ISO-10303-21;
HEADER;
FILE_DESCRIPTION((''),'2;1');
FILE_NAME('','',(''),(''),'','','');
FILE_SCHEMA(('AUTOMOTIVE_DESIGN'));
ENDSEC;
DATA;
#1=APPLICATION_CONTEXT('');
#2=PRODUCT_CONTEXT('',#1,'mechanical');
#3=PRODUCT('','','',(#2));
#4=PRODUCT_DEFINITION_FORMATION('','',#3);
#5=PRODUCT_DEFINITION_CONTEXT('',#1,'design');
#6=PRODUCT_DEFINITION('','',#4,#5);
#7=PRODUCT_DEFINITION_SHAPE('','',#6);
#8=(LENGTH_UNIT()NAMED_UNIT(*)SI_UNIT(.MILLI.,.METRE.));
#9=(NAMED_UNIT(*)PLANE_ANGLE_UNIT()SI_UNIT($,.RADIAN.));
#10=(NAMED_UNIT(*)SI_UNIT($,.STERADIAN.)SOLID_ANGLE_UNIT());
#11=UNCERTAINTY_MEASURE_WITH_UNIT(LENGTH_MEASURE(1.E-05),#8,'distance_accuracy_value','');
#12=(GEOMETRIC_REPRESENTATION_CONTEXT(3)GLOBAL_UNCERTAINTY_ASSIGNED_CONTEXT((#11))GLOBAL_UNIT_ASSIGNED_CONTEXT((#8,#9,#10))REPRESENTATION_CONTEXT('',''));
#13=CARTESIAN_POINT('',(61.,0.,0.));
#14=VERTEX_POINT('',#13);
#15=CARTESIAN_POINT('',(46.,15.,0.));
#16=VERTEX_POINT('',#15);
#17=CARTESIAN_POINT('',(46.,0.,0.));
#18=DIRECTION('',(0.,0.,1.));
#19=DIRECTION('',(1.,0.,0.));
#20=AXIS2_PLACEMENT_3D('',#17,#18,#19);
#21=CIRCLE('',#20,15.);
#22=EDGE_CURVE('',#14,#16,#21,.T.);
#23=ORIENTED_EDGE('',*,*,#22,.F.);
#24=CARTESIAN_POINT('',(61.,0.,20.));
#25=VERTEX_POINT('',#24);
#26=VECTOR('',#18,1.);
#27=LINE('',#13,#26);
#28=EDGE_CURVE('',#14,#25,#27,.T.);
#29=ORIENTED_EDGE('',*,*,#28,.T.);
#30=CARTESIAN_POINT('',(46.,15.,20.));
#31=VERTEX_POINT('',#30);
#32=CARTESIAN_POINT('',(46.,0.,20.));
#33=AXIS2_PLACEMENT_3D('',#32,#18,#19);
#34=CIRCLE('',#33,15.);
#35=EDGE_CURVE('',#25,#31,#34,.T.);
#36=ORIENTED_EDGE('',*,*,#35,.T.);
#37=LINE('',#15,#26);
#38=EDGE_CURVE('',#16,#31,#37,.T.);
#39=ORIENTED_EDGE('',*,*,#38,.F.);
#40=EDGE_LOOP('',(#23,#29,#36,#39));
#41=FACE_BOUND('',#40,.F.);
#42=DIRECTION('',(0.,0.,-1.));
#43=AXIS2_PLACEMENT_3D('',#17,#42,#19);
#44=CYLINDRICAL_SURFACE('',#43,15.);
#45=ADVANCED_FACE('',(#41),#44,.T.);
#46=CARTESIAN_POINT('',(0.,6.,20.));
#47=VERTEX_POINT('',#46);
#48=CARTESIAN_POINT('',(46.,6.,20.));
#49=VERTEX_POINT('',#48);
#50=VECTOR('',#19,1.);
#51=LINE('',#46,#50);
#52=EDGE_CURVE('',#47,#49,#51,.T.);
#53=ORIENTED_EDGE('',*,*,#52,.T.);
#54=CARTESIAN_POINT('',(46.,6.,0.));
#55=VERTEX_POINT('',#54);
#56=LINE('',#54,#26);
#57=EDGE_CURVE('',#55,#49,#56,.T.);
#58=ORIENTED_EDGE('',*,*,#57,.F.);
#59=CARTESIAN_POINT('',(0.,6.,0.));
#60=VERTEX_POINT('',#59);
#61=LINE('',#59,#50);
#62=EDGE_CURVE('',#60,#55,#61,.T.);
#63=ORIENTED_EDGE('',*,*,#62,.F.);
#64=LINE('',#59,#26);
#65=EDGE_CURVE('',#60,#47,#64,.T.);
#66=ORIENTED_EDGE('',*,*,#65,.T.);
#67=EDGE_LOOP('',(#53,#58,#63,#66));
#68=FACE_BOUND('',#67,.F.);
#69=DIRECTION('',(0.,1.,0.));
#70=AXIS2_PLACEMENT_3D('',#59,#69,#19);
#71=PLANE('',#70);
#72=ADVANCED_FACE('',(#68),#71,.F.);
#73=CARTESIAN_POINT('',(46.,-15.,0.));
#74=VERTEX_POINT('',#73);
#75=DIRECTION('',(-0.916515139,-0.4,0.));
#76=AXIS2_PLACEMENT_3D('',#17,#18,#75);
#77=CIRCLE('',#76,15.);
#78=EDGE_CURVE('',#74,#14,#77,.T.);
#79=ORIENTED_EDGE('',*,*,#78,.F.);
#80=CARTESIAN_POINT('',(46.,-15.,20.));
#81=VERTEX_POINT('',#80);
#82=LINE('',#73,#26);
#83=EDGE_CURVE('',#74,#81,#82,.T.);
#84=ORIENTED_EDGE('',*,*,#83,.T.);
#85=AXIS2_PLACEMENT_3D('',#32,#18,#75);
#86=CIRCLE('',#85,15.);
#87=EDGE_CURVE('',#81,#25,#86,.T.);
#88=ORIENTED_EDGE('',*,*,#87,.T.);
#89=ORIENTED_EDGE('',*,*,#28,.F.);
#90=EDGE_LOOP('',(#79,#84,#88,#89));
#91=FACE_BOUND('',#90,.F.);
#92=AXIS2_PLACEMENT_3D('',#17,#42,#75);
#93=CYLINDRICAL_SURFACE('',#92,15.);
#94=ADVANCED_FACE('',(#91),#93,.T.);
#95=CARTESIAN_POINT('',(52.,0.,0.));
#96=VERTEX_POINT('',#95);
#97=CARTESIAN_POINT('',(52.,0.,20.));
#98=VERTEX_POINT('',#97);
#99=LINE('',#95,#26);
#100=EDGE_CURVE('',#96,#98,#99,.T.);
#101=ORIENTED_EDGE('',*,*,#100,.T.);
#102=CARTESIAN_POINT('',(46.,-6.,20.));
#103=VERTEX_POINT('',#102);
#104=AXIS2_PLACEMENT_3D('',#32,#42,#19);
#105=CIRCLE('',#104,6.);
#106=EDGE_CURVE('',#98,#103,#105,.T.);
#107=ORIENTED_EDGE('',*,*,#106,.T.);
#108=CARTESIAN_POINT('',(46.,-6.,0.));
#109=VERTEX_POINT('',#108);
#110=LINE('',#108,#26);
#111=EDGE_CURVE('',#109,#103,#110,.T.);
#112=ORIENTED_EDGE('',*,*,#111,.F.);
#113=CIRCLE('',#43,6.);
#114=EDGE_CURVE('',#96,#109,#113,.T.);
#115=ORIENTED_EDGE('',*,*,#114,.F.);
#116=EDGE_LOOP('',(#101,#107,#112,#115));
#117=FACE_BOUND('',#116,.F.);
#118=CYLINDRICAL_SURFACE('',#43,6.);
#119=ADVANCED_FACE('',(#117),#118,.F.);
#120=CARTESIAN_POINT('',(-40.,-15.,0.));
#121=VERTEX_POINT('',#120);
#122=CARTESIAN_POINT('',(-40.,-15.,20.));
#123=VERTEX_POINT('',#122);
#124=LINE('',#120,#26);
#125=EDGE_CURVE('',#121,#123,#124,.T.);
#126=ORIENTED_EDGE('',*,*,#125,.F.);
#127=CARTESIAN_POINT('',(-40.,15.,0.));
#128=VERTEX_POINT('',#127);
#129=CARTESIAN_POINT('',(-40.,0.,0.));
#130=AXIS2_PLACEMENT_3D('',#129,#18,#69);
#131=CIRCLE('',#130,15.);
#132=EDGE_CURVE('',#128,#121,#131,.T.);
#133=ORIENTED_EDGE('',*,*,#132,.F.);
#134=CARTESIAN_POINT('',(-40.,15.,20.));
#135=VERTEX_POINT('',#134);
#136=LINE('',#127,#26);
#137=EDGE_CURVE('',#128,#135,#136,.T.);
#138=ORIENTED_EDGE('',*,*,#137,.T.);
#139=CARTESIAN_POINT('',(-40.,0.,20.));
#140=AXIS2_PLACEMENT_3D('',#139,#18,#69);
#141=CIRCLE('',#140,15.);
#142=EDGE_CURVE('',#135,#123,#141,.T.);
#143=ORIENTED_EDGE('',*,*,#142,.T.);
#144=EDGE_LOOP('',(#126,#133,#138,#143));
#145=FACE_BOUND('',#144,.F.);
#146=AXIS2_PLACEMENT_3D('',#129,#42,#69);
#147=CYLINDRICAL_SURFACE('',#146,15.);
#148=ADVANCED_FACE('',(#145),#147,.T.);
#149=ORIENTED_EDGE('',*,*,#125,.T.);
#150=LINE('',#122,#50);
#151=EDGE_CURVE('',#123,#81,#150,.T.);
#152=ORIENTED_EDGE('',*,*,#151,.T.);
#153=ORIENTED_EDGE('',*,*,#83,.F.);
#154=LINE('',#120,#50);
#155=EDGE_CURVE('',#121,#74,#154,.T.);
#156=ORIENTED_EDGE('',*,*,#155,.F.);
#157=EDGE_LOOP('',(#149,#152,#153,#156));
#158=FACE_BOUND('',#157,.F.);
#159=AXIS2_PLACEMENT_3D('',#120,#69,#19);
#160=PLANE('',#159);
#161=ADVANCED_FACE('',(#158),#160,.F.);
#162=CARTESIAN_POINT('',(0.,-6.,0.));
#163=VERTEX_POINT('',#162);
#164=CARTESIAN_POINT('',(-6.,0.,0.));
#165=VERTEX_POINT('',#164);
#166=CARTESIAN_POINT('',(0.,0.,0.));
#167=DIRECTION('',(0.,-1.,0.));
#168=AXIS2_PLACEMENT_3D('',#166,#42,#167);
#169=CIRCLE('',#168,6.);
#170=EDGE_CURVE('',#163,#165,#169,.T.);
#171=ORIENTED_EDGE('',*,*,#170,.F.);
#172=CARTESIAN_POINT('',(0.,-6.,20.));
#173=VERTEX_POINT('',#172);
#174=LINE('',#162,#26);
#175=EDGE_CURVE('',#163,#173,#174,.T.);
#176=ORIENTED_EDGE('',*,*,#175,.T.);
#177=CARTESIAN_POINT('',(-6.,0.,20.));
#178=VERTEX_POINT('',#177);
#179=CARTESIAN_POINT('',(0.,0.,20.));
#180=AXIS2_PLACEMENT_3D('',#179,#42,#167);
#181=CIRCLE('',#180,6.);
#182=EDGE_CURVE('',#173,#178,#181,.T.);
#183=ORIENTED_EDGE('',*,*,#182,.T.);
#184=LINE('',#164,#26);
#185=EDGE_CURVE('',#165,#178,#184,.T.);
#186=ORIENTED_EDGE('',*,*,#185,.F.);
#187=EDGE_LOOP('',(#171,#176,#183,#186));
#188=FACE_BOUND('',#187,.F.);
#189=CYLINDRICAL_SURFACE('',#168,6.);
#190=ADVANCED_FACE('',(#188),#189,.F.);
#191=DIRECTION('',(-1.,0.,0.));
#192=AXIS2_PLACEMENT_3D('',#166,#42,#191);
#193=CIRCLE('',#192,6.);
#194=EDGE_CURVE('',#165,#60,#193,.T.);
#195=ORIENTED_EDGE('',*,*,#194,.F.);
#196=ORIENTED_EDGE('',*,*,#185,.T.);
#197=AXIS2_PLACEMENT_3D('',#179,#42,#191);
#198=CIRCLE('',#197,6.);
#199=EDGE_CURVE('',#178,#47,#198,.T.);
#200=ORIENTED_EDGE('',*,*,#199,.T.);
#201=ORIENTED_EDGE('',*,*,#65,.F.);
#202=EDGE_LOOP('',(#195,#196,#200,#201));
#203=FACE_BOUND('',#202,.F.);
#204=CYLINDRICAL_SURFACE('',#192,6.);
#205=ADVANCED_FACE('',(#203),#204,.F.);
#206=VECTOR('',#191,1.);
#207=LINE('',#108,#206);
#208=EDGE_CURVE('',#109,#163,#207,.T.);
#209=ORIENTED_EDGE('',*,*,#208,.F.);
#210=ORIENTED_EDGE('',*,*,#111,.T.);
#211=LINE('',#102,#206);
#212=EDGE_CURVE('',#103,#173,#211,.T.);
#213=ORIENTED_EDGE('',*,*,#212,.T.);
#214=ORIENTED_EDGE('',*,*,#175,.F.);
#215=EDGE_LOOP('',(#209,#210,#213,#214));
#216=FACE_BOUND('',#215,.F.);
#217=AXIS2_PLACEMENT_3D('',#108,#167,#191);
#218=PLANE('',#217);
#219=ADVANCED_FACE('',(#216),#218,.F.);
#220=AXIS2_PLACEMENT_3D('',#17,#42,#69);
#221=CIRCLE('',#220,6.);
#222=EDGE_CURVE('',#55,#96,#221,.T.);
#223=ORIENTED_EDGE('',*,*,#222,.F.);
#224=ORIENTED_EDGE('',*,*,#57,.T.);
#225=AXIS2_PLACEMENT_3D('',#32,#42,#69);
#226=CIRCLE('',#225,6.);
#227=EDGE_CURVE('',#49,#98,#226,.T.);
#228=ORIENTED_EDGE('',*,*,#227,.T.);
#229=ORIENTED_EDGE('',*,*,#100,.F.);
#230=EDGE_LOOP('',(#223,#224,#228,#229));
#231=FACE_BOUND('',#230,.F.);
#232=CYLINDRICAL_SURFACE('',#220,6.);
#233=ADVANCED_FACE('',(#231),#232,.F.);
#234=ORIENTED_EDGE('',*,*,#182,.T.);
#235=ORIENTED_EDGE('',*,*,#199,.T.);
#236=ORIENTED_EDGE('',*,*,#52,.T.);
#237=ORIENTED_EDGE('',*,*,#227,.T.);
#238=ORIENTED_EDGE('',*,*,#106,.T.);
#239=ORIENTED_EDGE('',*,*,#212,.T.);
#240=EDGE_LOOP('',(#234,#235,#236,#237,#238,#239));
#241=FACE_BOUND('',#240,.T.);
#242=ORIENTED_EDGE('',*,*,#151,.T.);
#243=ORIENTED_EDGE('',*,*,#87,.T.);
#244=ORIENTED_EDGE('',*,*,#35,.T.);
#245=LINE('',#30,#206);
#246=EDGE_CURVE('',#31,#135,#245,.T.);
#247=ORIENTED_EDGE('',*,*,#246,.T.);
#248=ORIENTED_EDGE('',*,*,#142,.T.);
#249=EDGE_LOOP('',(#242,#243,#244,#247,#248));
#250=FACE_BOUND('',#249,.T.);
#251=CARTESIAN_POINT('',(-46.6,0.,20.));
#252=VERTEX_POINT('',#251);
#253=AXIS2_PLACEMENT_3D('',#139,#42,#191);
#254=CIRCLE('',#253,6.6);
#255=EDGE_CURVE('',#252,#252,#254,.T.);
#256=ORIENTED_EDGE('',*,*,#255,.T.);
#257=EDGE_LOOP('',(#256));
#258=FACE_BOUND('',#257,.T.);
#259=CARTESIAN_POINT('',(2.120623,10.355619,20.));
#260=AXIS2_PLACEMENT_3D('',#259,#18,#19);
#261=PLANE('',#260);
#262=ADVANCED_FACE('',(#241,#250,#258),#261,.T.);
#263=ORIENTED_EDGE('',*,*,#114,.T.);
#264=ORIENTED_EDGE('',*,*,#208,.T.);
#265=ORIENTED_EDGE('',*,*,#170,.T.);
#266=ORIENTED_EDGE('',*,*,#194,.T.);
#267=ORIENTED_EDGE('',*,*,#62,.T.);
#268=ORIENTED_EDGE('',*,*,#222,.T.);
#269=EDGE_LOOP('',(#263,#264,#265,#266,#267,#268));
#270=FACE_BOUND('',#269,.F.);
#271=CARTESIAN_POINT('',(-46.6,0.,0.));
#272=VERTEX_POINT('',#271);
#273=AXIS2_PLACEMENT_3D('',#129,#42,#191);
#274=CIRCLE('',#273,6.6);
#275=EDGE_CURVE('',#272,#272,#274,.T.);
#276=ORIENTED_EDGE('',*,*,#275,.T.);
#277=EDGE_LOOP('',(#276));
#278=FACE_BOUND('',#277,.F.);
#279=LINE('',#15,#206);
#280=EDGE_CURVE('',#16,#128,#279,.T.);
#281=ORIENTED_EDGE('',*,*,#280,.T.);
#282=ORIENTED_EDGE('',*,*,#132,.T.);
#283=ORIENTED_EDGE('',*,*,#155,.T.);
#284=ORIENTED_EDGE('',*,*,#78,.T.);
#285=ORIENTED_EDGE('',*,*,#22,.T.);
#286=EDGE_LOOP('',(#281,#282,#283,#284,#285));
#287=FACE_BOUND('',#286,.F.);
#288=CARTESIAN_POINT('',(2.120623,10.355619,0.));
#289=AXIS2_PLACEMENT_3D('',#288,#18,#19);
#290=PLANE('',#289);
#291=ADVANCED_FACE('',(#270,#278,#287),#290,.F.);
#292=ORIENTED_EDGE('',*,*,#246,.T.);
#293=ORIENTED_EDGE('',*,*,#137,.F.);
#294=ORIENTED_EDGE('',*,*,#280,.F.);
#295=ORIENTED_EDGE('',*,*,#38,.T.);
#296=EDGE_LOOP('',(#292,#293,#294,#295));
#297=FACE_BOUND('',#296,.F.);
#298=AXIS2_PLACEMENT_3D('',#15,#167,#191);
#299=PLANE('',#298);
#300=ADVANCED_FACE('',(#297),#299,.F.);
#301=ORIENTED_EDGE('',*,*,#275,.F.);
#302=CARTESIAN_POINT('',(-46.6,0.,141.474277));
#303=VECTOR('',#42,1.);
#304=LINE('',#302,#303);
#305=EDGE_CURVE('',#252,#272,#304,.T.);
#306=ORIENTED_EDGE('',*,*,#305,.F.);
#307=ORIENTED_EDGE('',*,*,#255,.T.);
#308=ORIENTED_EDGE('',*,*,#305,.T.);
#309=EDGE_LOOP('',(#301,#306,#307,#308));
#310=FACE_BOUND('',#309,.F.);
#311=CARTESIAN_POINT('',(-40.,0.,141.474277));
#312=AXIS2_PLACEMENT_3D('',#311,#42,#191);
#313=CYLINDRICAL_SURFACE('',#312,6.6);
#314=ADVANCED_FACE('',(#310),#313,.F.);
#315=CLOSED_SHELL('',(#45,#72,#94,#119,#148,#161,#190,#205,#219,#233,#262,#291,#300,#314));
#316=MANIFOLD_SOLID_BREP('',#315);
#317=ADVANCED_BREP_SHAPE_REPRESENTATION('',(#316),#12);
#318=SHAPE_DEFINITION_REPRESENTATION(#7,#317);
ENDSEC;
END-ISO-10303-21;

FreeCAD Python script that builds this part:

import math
import FreeCAD as App
import Part
import Sketcher

doc = App.newDocument("Part")
body = doc.addObject("PartDesign::Body", "Body")

# Sketch on XY plane
sketch1 = doc.addObject("Sketcher::SketchObject", "Sketch")
body.addObject(sketch1)
sketch1.AttachmentSupport = (doc.XY_Plane, [""])
sketch1.MapMode = "FlatFace"
sketch1.addGeometry([
    Part.LineSegment(App.Vector(46, 15, 0), App.Vector(-40, 15, 0)),  # 0
    Part.ArcOfCircle(Part.Circle(App.Vector(-40, 0, 0), App.Vector(0, 0, 1), 15), math.radians(90), math.radians(270)),  # 1
    Part.LineSegment(App.Vector(-40, -15, 0), App.Vector(46, -15, 0)),  # 2
    Part.ArcOfCircle(Part.Circle(App.Vector(46, 0, 0), App.Vector(0, 0, 1), 15), math.radians(-90), math.radians(0)),  # 3
    Part.ArcOfCircle(Part.Circle(App.Vector(46, 0, 0), App.Vector(0, 0, 1), 15), math.radians(0), math.radians(90)),  # 4
    Part.ArcOfCircle(Part.Circle(App.Vector(0, 0, 0), App.Vector(0, 0, 1), 6), math.radians(90), math.radians(180)),  # 5
    Part.LineSegment(App.Vector(0, 6, 0), App.Vector(46, 6, 0)),  # 6
    Part.ArcOfCircle(Part.Circle(App.Vector(46, 0, 0), App.Vector(0, 0, 1), 6), math.radians(0), math.radians(90)),  # 7
    Part.ArcOfCircle(Part.Circle(App.Vector(46, 0, 0), App.Vector(0, 0, 1), 6), math.radians(-90), math.radians(0)),  # 8
    Part.LineSegment(App.Vector(46, -6, 0), App.Vector(0, -6, 0)),  # 9
    Part.ArcOfCircle(Part.Circle(App.Vector(0, 0, 0), App.Vector(0, 0, 1), 6), math.radians(180), math.radians(270)),  # 10
], False)
sketch1.addConstraint([
    Sketcher.Constraint("Tangent", 0, 2, 1, 1),
    Sketcher.Constraint("Tangent", 1, 2, 2, 1),
    Sketcher.Constraint("Tangent", 2, 2, 3, 1),
    Sketcher.Constraint("Tangent", 3, 2, 4, 1),
    Sketcher.Constraint("Tangent", 4, 2, 0, 1),
    Sketcher.Constraint("Tangent", 5, 1, 6, 1),
    Sketcher.Constraint("Tangent", 6, 2, 7, 2),
    Sketcher.Constraint("Tangent", 7, 1, 8, 2),
    Sketcher.Constraint("Tangent", 8, 1, 9, 1),
    Sketcher.Constraint("Tangent", 9, 2, 10, 2),
    Sketcher.Constraint("Tangent", 10, 1, 5, 2),
    Sketcher.Constraint("Horizontal", 0),
    Sketcher.Constraint("Horizontal", 2),
    Sketcher.Constraint("Horizontal", 6),
    Sketcher.Constraint("Horizontal", 9),
    Sketcher.Constraint("Coincident", 5, 3, -1, 1),
    Sketcher.Constraint("Coincident", 7, 3, 3, 3),
    Sketcher.Constraint("Equal", 1, 3),
    Sketcher.Constraint("Equal", 5, 7),
    Sketcher.Constraint("Equal", 7, 8),
    Sketcher.Constraint("PointOnObject", 3, 2, -1),
    Sketcher.Constraint("PointOnObject", 7, 1, -1),
    Sketcher.Constraint("PointOnObject", 10, 1, -1),
    Sketcher.Constraint("Radius", 1, 15.0),
    Sketcher.Constraint("Radius", 5, 6.0),
    Sketcher.Constraint("DistanceX", 0, 2, 0, 1, 86.0),
    Sketcher.Constraint("DistanceX", 6, 1, 6, 2, 46.0),
])
pad1 = doc.addObject("PartDesign::Pad", "Pad")
body.addObject(pad1)
pad1.Profile = sketch1
pad1.Length = 20

# Sketch on XY plane
sketch2 = doc.addObject("Sketcher::SketchObject", "Sketch001")
body.addObject(sketch2)
sketch2.AttachmentSupport = (doc.XY_Plane, [""])
sketch2.MapMode = "FlatFace"
sketch2.AttachmentOffset = App.Placement(App.Vector(0, 0, 20), App.Rotation())
sketch2.addGeometry(Part.Circle(App.Vector(-40, 0, 0), App.Vector(0, 0, 1), 7), False)
sketch2.addConstraint([
    Sketcher.Constraint("PointOnObject", 0, 3, -1),
    Sketcher.Constraint("Diameter", 0, 13.2),
    Sketcher.Constraint("DistanceX", 0, 3, -1, 1, 40.0),
])
doc.recompute()
hole = doc.addObject("PartDesign::Hole", "Hole")
body.addObject(hole)
hole.Profile = sketch2
hole.ThreadType = "None"
hole.Diameter = 13.2
hole.DepthType = "ThroughAll"

doc.recompute()
